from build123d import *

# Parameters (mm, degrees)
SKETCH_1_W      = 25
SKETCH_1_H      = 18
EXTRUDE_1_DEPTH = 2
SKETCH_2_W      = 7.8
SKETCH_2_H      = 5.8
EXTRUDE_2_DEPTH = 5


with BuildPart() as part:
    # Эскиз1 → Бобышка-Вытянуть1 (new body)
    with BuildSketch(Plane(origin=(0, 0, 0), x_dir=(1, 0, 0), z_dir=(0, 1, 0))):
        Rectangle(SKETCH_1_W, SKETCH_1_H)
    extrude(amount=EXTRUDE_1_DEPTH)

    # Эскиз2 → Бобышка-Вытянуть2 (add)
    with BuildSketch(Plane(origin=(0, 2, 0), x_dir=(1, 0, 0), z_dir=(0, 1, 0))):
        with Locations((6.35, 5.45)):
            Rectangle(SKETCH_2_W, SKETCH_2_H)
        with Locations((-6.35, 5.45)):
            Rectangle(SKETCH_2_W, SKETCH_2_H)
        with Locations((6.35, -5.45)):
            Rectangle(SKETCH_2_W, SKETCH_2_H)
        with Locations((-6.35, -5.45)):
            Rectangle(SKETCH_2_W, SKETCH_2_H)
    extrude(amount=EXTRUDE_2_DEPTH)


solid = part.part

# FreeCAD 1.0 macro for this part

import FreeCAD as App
import Part
import Sketcher
Q = App.Units.Quantity


def add_polygon(sketch, points):
    """Adds a closed chain of lines whose ends are joined by coincident constraints."""
    first, n = sketch.GeometryCount, len(points)
    for a, b in zip(points, points[1:] + points[:1]):
        sketch.addGeometry(Part.LineSegment(App.Vector(*a, 0), App.Vector(*b, 0)), False)
    for i in range(n):
        sketch.addConstraint(Sketcher.Constraint("Coincident", first + i, 2, first + (i + 1) % n, 1))

doc = App.newDocument("Part")
body = doc.addObject("PartDesign::Body", "Body")

# Sketch on XZ plane
sketch1 = body.newObject("Sketcher::SketchObject", "Sketch")
sketch1.AttachmentSupport = (doc.getObject("XZ_Plane"), [""])
sketch1.MapMode = "FlatFace"
add_polygon(sketch1, [(-12, -9), (-12, 9), (12, 9), (12, -9)])  # lines 0-3
sketch1.addConstraint(Sketcher.Constraint("Vertical", 0))
sketch1.addConstraint(Sketcher.Constraint("Horizontal", 1))
sketch1.addConstraint(Sketcher.Constraint("Vertical", 2))
sketch1.addConstraint(Sketcher.Constraint("Horizontal", 3))
sketch1.addConstraint(Sketcher.Constraint("Symmetric", 0, 2, 2, 2, -1, 1))
sketch1.addConstraint(Sketcher.Constraint("DistanceX", 1, 1, 1, 2, Q("25 mm")))
sketch1.addConstraint(Sketcher.Constraint("DistanceY", 0, 1, 0, 2, Q("18 mm")))
pad1 = body.newObject("PartDesign::Pad", "Pad")
pad1.Profile = sketch1
pad1.Length = 2
pad1.Reversed = True

# Sketch on XZ plane
sketch2 = body.newObject("Sketcher::SketchObject", "Sketch001")
sketch2.AttachmentSupport = (doc.getObject("XZ_Plane"), [""])
sketch2.MapMode = "FlatFace"
sketch2.AttachmentOffset = App.Placement(App.Vector(0, 0, -2), App.Rotation())
add_polygon(sketch2, [(2, -8), (2, -3), (10, -3), (10, -8)])  # lines 0-3
add_polygon(sketch2, [(-10, -8), (-10, -3), (-2, -3), (-2, -8)])  # lines 4-7
add_polygon(sketch2, [(2, 3), (2, 8), (10, 8), (10, 3)])  # lines 8-11
add_polygon(sketch2, [(-10, 3), (-10, 8), (-2, 8), (-2, 3)])  # lines 12-15
sketch2.addConstraint(Sketcher.Constraint("Vertical", 0))
sketch2.addConstraint(Sketcher.Constraint("Horizontal", 1))
sketch2.addConstraint(Sketcher.Constraint("Vertical", 2))
sketch2.addConstraint(Sketcher.Constraint("Horizontal", 3))
sketch2.addConstraint(Sketcher.Constraint("Vertical", 4))
sketch2.addConstraint(Sketcher.Constraint("Horizontal", 5))
sketch2.addConstraint(Sketcher.Constraint("Vertical", 6))
sketch2.addConstraint(Sketcher.Constraint("Horizontal", 7))
sketch2.addConstraint(Sketcher.Constraint("Vertical", 8))
sketch2.addConstraint(Sketcher.Constraint("Horizontal", 9))
sketch2.addConstraint(Sketcher.Constraint("Vertical", 10))
sketch2.addConstraint(Sketcher.Constraint("Horizontal", 11))
sketch2.addConstraint(Sketcher.Constraint("Vertical", 12))
sketch2.addConstraint(Sketcher.Constraint("Horizontal", 13))
sketch2.addConstraint(Sketcher.Constraint("Vertical", 14))
sketch2.addConstraint(Sketcher.Constraint("Horizontal", 15))
sketch2.addConstraint(Sketcher.Constraint("Symmetric", 6, 2, 8, 2, -1, 1))
sketch2.addConstraint(Sketcher.Constraint("Symmetric", 4, 2, 10, 2, -1, 1))
sketch2.addConstraint(Sketcher.Constraint("Symmetric", 2, 2, 12, 2, -1, 1))
sketch2.addConstraint(Sketcher.Constraint("Symmetric", 0, 2, 14, 2, -1, 1))
sketch2.addConstraint(Sketcher.Constraint("Symmetric", 1, 2, 4, 2, -2))
sketch2.addConstraint(Sketcher.Constraint("Symmetric", 3, 2, 6, 2, -2))
sketch2.addConstraint(Sketcher.Constraint("DistanceX", 1, 1, 1, 2, Q("7.8 mm")))
sketch2.addConstraint(Sketcher.Constraint("DistanceY", 0, 1, 0, 2, Q("5.8 mm")))
sketch2.addConstraint(Sketcher.Constraint("DistanceX", 4, 2, 0, 2, Q("12.7 mm")))
sketch2.addConstraint(Sketcher.Constraint("DistanceY", 0, 2, 8, 2, Q("10.9 mm")))
pad2 = body.newObject("PartDesign::Pad", "Pad001")
pad2.Profile = sketch2
pad2.Length = 5
pad2.Reversed = True

doc.recompute()
